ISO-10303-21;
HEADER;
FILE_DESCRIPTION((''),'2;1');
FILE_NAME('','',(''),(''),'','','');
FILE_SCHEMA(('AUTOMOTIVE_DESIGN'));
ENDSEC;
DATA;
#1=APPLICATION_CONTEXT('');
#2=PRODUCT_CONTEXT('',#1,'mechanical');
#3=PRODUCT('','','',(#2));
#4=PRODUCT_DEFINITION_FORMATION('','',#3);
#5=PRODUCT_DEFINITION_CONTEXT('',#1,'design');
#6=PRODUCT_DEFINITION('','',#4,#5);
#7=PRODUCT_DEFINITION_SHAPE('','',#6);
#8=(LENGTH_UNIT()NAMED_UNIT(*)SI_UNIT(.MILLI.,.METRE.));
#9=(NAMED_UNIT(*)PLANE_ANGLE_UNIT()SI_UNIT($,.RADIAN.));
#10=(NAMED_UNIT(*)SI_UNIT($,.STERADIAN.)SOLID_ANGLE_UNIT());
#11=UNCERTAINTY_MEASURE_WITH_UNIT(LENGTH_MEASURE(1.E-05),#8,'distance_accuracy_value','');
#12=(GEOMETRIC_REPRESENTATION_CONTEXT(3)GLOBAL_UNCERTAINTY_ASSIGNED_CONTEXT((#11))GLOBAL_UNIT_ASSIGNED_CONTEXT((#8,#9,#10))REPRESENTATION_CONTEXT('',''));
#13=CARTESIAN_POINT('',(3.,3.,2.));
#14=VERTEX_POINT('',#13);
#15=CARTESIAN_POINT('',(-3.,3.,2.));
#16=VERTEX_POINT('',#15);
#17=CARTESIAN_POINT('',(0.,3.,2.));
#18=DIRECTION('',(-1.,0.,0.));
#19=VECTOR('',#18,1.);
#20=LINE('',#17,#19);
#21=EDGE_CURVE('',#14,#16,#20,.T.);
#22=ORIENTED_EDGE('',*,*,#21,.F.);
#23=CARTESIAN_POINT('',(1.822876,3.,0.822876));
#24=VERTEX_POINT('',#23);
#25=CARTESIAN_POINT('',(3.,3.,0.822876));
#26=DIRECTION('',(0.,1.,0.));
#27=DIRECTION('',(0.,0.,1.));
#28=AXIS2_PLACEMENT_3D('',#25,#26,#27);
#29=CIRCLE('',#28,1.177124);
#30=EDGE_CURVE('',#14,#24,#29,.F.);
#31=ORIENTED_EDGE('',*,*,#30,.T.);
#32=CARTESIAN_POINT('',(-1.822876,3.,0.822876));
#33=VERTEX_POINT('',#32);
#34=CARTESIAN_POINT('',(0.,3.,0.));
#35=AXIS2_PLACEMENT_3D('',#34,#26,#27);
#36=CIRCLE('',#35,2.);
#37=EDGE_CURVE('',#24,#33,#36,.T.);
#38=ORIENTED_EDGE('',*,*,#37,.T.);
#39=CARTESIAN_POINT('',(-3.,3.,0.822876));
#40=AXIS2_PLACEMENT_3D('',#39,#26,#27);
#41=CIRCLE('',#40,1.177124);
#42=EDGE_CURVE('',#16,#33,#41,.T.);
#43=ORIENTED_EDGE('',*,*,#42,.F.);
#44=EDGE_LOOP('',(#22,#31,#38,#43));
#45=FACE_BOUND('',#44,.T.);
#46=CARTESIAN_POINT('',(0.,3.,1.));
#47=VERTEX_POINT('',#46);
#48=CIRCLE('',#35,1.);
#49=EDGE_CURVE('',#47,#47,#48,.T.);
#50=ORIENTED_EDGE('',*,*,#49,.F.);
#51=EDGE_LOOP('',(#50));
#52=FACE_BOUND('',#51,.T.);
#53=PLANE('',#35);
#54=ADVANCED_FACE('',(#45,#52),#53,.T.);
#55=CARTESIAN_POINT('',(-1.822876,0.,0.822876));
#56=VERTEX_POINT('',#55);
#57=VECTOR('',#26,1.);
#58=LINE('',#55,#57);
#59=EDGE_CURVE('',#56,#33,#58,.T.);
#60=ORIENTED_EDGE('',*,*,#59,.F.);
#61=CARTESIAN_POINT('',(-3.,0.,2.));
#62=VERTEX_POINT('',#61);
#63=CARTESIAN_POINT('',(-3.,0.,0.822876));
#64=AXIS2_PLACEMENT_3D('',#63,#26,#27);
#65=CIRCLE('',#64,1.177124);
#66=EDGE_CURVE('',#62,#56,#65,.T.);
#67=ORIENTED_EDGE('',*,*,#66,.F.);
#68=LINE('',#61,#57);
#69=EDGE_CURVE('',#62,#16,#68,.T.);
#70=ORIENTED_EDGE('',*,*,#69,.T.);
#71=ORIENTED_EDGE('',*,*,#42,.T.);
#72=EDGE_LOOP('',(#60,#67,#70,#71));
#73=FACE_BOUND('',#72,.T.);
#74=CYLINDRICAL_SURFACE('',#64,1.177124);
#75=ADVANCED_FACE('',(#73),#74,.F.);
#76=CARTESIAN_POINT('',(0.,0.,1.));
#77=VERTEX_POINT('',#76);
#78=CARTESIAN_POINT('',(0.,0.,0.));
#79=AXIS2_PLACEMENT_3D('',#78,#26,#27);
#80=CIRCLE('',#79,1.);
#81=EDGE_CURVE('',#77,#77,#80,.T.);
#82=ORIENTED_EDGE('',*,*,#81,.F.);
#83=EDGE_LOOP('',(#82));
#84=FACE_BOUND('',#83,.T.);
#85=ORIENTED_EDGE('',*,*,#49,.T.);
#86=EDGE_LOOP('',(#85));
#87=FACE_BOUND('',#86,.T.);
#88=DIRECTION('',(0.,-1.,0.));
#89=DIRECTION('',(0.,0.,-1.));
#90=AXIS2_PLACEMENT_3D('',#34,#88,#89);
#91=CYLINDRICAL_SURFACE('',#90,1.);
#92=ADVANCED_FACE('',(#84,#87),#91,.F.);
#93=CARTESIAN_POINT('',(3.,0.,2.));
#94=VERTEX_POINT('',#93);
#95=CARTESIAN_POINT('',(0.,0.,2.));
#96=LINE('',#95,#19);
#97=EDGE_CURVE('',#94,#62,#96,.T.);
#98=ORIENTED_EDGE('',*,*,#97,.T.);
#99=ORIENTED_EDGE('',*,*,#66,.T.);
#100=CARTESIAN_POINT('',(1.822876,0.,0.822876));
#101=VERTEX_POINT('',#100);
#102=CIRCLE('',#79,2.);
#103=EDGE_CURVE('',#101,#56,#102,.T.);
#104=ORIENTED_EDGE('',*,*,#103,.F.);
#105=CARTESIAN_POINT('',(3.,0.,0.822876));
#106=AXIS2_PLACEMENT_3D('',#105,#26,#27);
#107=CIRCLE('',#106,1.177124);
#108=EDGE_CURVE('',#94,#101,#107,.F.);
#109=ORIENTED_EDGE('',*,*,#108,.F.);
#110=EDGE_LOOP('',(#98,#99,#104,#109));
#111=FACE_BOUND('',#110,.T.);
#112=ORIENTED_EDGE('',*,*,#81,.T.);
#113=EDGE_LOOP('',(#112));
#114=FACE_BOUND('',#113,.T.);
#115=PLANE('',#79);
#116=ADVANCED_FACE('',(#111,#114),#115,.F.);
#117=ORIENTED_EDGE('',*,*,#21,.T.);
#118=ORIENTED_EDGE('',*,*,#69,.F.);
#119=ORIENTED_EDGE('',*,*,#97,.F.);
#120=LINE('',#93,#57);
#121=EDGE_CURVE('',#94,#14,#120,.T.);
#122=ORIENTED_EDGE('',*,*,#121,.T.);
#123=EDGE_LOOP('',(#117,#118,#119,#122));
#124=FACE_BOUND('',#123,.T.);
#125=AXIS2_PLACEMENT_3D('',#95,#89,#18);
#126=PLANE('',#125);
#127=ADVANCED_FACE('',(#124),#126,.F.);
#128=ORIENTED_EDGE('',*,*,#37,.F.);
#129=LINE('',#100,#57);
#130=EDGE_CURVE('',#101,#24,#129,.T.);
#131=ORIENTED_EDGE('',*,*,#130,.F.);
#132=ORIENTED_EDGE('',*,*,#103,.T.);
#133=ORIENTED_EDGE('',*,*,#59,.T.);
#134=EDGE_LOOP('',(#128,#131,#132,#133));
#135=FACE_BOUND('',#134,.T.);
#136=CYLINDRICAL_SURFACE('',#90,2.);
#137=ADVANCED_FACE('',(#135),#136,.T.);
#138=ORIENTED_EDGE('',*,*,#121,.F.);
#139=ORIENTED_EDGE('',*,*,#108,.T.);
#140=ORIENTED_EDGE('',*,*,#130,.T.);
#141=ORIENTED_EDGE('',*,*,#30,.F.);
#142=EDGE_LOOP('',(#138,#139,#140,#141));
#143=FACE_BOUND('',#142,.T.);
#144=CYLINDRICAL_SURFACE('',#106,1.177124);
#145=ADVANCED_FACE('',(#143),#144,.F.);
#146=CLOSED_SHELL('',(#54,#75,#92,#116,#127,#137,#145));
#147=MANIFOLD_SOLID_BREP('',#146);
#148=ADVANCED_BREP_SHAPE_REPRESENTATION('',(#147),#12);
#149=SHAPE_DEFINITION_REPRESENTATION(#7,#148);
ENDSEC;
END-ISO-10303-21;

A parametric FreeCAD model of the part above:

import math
import FreeCAD as App
import Part
import Sketcher

doc = App.newDocument("Part")
body = doc.addObject("PartDesign::Body", "Body")

sketch1 = body.newObject("Sketcher::SketchObject", "Sketch")
sketch1.AttachmentSupport = (doc.getObject("XZ_Plane"), [""])
sketch1.MapMode = "FlatFace"
sketch1.addGeometry([
    Part.Circle(App.Vector(0, 0, 0), App.Vector(0, 0, 1), 2),
    Part.Circle(App.Vector(0, 0, 0), App.Vector(0, 0, 1), 1),
], False)
sketch1.addConstraint([
    Sketcher.Constraint("Coincident", 0, 3, -1, 1),
    Sketcher.Constraint("Coincident", 1, 3, -1, 1),
    Sketcher.Constraint("Diameter", 0, 4.0),
    Sketcher.Constraint("Diameter", 1, 2.0),
])
pad1 = body.newObject("PartDesign::Pad", "Pad")
pad1.Profile = sketch1
pad1.Length = 3
pad1.Reversed = True

sketch2 = body.newObject("Sketcher::SketchObject", "Sketch001")
sketch2.AttachmentSupport = (doc.getObject("XZ_Plane"), [""])
sketch2.MapMode = "FlatFace"
sketch2.addGeometry([
    Part.LineSegment(App.Vector(-3, 2, 0), App.Vector(0, 2, 0)),
    Part.ArcOfCircle(Part.Circle(App.Vector(0, 0, 0), App.Vector(0, 0, 1), 2), math.radians(90), math.radians(156)),
    Part.ArcOfCircle(Part.Circle(App.Vector(-3, 0.8, 0), App.Vector(0, 0, 1), 1.2), math.radians(0), math.radians(90)),
    Part.ArcOfCircle(Part.Circle(App.Vector(0, 0, 0), App.Vector(0, 0, 1), 2), math.radians(24), math.radians(90)),
    Part.LineSegment(App.Vector(0, 2, 0), App.Vector(3, 2, 0)),
    Part.ArcOfCircle(Part.Circle(App.Vector(3, 0.8, 0), App.Vector(0, 0, 1), 1.2), math.radians(90), math.radians(180)),
], False)
sketch2.addConstraint([
    Sketcher.Constraint("Tangent", 0, 2, 1, 1),
    Sketcher.Constraint("Coincident", 1, 2, 2, 1),
    Sketcher.Constraint("Tangent", 2, 2, 0, 1),
    Sketcher.Constraint("Tangent", 3, 2, 4, 1),
    Sketcher.Constraint("Tangent", 4, 2, 5, 1),
    Sketcher.Constraint("Coincident", 5, 2, 3, 1),
    Sketcher.Constraint("Horizontal", 0),
    Sketcher.Constraint("Horizontal", 4),
    Sketcher.Constraint("Coincident", 1, 3, -1, 1),
    Sketcher.Constraint("Coincident", 3, 3, -1, 1),
    Sketcher.Constraint("Equal", 1, 3),
    Sketcher.Constraint("Equal", 2, 5),
    Sketcher.Constraint("Horizontal", 5, 3, 1, 2),
    Sketcher.Constraint("Horizontal", 1, 2, 5, 2),
    Sketcher.Constraint("Radius", 1, 2.0),
    Sketcher.Constraint("DistanceX", 0, 1, 0, 2, 3.0),
])
pad2 = body.newObject("PartDesign::Pad", "Pad001")
pad2.Profile = sketch2
pad2.Length = 3
pad2.Reversed = True

doc.recompute()
